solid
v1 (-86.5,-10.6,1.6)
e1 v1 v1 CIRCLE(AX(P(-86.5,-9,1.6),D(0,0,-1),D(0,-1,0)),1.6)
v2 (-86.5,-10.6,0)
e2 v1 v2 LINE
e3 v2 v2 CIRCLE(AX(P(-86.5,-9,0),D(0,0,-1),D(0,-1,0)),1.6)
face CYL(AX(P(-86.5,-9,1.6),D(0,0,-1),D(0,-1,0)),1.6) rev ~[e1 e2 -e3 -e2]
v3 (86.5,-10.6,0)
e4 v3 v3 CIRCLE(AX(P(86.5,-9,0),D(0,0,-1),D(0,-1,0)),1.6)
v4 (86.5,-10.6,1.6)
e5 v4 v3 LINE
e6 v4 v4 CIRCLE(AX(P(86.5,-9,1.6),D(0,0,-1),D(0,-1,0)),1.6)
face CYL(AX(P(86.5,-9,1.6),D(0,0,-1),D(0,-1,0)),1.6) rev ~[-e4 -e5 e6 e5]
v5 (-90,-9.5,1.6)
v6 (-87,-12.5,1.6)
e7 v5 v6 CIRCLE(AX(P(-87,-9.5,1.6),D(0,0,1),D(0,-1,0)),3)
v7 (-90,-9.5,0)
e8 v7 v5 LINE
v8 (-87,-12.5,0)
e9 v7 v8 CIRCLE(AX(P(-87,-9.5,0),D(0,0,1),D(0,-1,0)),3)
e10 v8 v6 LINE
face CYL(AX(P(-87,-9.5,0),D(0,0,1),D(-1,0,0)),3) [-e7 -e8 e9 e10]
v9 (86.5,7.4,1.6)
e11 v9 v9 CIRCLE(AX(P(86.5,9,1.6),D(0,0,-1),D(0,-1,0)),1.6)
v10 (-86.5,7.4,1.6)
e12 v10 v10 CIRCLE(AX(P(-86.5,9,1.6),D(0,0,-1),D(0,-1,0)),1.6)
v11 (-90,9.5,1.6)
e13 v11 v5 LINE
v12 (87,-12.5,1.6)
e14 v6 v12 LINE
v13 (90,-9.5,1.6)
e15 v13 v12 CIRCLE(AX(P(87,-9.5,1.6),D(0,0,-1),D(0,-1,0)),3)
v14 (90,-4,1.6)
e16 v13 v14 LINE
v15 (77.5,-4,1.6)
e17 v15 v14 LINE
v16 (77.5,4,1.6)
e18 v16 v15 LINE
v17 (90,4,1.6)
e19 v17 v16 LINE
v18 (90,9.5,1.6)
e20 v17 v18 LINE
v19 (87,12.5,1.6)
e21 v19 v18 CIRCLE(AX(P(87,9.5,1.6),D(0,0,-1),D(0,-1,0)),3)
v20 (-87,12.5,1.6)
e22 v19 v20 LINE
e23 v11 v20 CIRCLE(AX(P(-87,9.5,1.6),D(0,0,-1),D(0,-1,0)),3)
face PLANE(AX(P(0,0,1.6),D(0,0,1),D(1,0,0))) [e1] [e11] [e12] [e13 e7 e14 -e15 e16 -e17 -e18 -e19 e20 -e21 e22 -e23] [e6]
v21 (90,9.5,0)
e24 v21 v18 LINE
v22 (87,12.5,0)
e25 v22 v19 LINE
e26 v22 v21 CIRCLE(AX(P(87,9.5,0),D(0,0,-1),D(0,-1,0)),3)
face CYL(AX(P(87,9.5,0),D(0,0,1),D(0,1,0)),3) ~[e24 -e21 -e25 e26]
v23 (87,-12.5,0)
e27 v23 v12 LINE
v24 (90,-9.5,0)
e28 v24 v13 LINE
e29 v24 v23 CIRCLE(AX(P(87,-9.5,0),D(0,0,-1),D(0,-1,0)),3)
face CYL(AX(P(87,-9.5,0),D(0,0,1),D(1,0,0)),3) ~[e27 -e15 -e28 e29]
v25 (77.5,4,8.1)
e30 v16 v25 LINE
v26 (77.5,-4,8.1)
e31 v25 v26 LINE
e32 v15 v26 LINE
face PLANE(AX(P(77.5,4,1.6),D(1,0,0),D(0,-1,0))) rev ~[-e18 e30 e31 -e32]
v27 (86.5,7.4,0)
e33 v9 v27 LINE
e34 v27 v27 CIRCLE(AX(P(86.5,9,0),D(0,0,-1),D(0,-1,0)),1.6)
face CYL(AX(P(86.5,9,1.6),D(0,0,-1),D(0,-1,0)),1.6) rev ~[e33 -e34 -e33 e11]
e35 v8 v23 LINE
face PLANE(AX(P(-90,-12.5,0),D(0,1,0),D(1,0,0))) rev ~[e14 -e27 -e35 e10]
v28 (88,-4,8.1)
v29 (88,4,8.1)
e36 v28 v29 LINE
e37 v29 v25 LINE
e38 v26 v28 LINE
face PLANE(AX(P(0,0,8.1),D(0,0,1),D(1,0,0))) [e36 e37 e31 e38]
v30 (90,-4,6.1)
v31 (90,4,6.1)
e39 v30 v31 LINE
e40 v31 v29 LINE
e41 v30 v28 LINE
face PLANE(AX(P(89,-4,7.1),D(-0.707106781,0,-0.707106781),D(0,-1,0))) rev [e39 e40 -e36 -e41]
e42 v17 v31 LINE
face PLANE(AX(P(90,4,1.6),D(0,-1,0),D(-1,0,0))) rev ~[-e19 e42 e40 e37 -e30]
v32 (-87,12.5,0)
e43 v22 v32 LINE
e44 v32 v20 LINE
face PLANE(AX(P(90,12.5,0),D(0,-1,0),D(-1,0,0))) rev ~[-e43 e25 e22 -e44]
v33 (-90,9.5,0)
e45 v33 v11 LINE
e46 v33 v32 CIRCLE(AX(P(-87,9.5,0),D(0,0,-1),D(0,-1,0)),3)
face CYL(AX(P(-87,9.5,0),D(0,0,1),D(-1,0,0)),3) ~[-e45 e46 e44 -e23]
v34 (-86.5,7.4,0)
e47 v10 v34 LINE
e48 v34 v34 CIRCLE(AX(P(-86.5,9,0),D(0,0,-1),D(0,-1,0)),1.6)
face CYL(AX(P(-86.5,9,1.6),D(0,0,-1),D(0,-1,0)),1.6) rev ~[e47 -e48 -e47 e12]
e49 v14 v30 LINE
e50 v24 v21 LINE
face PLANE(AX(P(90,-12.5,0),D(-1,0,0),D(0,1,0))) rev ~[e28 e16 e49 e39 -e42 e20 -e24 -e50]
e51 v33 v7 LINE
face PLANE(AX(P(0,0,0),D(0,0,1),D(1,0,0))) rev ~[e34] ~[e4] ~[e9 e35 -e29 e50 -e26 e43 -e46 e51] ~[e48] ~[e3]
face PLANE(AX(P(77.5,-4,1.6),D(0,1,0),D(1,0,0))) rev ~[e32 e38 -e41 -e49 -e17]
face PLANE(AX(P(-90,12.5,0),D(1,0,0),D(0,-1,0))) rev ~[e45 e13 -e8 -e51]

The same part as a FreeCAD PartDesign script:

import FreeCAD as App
import Part
import Sketcher
from FreeCAD import Vector
Q = App.Units.Quantity


def edges_at(feature, points):
    """Names of the edges that pass closest to the given points."""
    edges = feature.Shape.Edges
    near = lambda p: min(range(len(edges)), key=lambda i: edges[i].distToShape(Part.Vertex(*p))[0])
    return sorted({f"Edge{near(p) + 1}" for p in points})

doc = App.newDocument("Part")
body = doc.addObject("PartDesign::Body", "Body")

# Sketch on XY plane
sketch1 = body.newObject("Sketcher::SketchObject", "Sketch")
sketch1.AttachmentSupport = (doc.getObject("XY_Plane"), [""])
sketch1.MapMode = "FlatFace"
sketch1.addGeometry(Part.LineSegment(Vector(-90, 12, 0), Vector(-90, -12, 0)), False)
sketch1.addGeometry(Part.LineSegment(Vector(-90, -12, 0), Vector(90, -12, 0)), False)
sketch1.addGeometry(Part.LineSegment(Vector(90, -12, 0), Vector(90, 12, 0)), False)
sketch1.addGeometry(Part.LineSegment(Vector(90, 12, 0), Vector(-90, 12, 0)), False)
sketch1.addConstraint(Sketcher.Constraint("Coincident", 0, 2, 1, 1))
sketch1.addConstraint(Sketcher.Constraint("Coincident", 1, 2, 2, 1))
sketch1.addConstraint(Sketcher.Constraint("Coincident", 2, 2, 3, 1))
sketch1.addConstraint(Sketcher.Constraint("Coincident", 3, 2, 0, 1))
sketch1.addConstraint(Sketcher.Constraint("Vertical", 0))
sketch1.addConstraint(Sketcher.Constraint("Horizontal", 1))
sketch1.addConstraint(Sketcher.Constraint("Vertical", 2))
sketch1.addConstraint(Sketcher.Constraint("Horizontal", 3))
sketch1.addConstraint(Sketcher.Constraint("Symmetric", 0, 2, 2, 2, -1, 1))
sketch1.addConstraint(Sketcher.Constraint("DistanceX", 1, 1, 1, 2, Q("180 mm")))
sketch1.addConstraint(Sketcher.Constraint("DistanceY", 0, 2, 0, 1, Q("25 mm")))
pad1 = body.newObject("PartDesign::Pad", "Pad")
pad1.Profile = sketch1
pad1.Length = 1.6
doc.recompute()

fillet = body.newObject("PartDesign::Fillet", "Fillet")
fillet.Base = (pad1, edges_at(pad1, [
    (-90, -12.5, 0.8),
    (-90, 12.5, 0.8),
    (90, -12.5, 0.8),
    (90, 12.5, 0.8),
]))
fillet.Radius = 3

# Sketch on XY plane
sketch2 = body.newObject("Sketcher::SketchObject", "Sketch001")
sketch2.AttachmentSupport = (doc.getObject("XY_Plane"), [""])
sketch2.MapMode = "FlatFace"
sketch2.AttachmentOffset = App.Placement(Vector(0, 0, 1.6), App.Rotation())
sketch2.addGeometry(Part.Circle(Vector(-86.5, 9, 0), Vector(0, 0, 1), 1.6), False)
sketch2.addGeometry(Part.Circle(Vector(-86.5, -9, 0), Vector(0, 0, 1), 1.6), False)
sketch2.addGeometry(Part.Circle(Vector(86.5, -9, 0), Vector(0, 0, 1), 1.6), False)
sketch2.addGeometry(Part.Circle(Vector(86.5, 9, 0), Vector(0, 0, 1), 1.6), False)
sketch2.addConstraint(Sketcher.Constraint("Equal", 0, 1))
sketch2.addConstraint(Sketcher.Constraint("Equal", 1, 2))
sketch2.addConstraint(Sketcher.Constraint("Equal", 2, 3))
sketch2.addConstraint(Sketcher.Constraint("Symmetric", 0, 3, 2, 3, -1, 1))
sketch2.addConstraint(Sketcher.Constraint("Symmetric", 1, 3, 3, 3, -1, 1))
sketch2.addConstraint(Sketcher.Constraint("Symmetric", 1, 3, 2, 3, -2))
sketch2.addConstraint(Sketcher.Constraint("Diameter", 0, Q("3.2 mm")))
sketch2.addConstraint(Sketcher.Constraint("DistanceY", -1, 1, 0, 3, Q("9 mm")))
sketch2.addConstraint(Sketcher.Constraint("DistanceX", 1, 3, 2, 3, Q("173 mm")))
doc.recompute()
hole = body.newObject("PartDesign::Hole", "Hole")
hole.Profile = sketch2
hole.ThreadType = "None"
hole.Diameter = 3.2
hole.DepthType = "ThroughAll"

# Sketch on XY plane
sketch3 = body.newObject("Sketcher::SketchObject", "Sketch002")
sketch3.AttachmentSupport = (doc.getObject("XY_Plane"), [""])
sketch3.MapMode = "FlatFace"
sketch3.AttachmentOffset = App.Placement(Vector(0, 0, 1.6), App.Rotation())
sketch3.addGeometry(Part.LineSegment(Vector(78, -4, 0), Vector(90, -4, 0)), False)
sketch3.addGeometry(Part.LineSegment(Vector(90, -4, 0), Vector(90, 4, 0)), False)
sketch3.addGeometry(Part.LineSegment(Vector(90, 4, 0), Vector(78, 4, 0)), False)
sketch3.addGeometry(Part.LineSegment(Vector(78, 4, 0), Vector(78, -4, 0)), False)
sketch3.addConstraint(Sketcher.Constraint("Coincident", 0, 2, 1, 1))
sketch3.addConstraint(Sketcher.Constraint("Coincident", 1, 2, 2, 1))
sketch3.addConstraint(Sketcher.Constraint("Coincident", 2, 2, 3, 1))
sketch3.addConstraint(Sketcher.Constraint("Coincident", 3, 2, 0, 1))
sketch3.addConstraint(Sketcher.Constraint("Horizontal", 0))
sketch3.addConstraint(Sketcher.Constraint("Vertical", 1))
sketch3.addConstraint(Sketcher.Constraint("Horizontal", 2))
sketch3.addConstraint(Sketcher.Constraint("Vertical", 3))
sketch3.addConstraint(Sketcher.Constraint("DistanceY", 1, 1, 1, 2, Q("8 mm")))
sketch3.addConstraint(Sketcher.Constraint("DistanceX", 0, 1, 0, 2, Q("12.5 mm")))
sketch3.addConstraint(Sketcher.Constraint("DistanceY", 0, 2, -1, 1, Q("4 mm")))
sketch3.addConstraint(Sketcher.Constraint("DistanceX", -1, 1, 0, 2, Q("90 mm")))
pad2 = body.newObject("PartDesign::Pad", "Pad001")
pad2.Profile = sketch3
pad2.Length = 6.5
doc.recompute()

chamfer = body.newObject("PartDesign::Chamfer", "Chamfer")
chamfer.Base = (pad2, edges_at(pad2, [(90, 0, 8.1)]))
chamfer.Size = 2

doc.recompute()
